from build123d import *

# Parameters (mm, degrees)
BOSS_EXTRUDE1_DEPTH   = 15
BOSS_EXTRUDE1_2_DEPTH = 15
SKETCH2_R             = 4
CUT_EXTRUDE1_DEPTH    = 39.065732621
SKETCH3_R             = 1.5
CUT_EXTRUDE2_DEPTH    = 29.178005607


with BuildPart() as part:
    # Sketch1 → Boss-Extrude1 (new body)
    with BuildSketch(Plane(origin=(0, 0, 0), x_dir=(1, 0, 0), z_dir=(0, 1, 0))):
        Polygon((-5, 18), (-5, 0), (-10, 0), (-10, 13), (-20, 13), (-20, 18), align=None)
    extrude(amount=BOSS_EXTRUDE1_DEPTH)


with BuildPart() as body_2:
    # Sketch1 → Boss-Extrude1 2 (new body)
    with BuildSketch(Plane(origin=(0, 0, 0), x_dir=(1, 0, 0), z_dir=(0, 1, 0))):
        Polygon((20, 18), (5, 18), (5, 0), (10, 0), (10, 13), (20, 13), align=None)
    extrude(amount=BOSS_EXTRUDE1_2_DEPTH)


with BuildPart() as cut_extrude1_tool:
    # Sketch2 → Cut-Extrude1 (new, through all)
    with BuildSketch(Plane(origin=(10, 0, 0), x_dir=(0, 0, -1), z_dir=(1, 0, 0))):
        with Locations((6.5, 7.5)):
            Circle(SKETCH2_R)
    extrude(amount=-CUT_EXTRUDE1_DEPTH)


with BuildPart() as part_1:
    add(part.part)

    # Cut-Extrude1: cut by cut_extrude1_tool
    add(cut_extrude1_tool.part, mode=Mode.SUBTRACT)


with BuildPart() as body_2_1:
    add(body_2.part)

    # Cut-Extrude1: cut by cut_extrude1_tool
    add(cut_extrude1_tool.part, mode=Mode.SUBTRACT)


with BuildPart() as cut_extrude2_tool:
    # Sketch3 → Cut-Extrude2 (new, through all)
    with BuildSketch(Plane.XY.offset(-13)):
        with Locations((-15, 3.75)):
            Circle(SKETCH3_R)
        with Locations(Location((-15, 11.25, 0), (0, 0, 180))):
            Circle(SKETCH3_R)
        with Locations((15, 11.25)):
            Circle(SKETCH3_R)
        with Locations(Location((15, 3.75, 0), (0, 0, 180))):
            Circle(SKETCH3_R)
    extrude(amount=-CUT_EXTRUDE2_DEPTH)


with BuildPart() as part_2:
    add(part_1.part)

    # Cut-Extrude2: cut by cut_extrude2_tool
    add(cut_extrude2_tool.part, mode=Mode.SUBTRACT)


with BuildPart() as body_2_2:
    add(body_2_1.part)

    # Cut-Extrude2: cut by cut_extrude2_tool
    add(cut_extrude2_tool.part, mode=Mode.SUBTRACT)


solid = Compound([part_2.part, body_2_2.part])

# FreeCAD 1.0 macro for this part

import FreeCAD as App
import Part
import Sketcher

V = App.Vector

doc = App.newDocument("Part")
body = doc.addObject("PartDesign::Body", "Body")

# Sketch on XZ plane
sketch1 = body.newObject("Sketcher::SketchObject", "Sketch")
sketch1.AttachmentSupport = (doc.getObject("XZ_Plane"), [""])
sketch1.MapMode = "FlatFace"
sketch1.addGeometry(Part.LineSegment(V(-5, 0, 0), V(-5, -18, 0)), False)
sketch1.addGeometry(Part.LineSegment(V(-5, -18, 0), V(-20, -18, 0)), False)
sketch1.addGeometry(Part.LineSegment(V(-20, -18, 0), V(-20, -13, 0)), False)
sketch1.addGeometry(Part.LineSegment(V(-20, -13, 0), V(-10, -13, 0)), False)
sketch1.addGeometry(Part.LineSegment(V(-10, -13, 0), V(-10, 0, 0)), False)
sketch1.addGeometry(Part.LineSegment(V(-10, 0, 0), V(-5, 0, 0)), False)
sketch1.addConstraint(Sketcher.Constraint("Coincident", 0, 2, 1, 1))
sketch1.addConstraint(Sketcher.Constraint("Coincident", 1, 2, 2, 1))
sketch1.addConstraint(Sketcher.Constraint("Coincident", 2, 2, 3, 1))
sketch1.addConstraint(Sketcher.Constraint("Coincident", 3, 2, 4, 1))
sketch1.addConstraint(Sketcher.Constraint("Coincident", 4, 2, 5, 1))
sketch1.addConstraint(Sketcher.Constraint("Coincident", 5, 2, 0, 1))
sketch1.addConstraint(Sketcher.Constraint("Vertical", 0))
sketch1.addConstraint(Sketcher.Constraint("Horizontal", 1))
sketch1.addConstraint(Sketcher.Constraint("Vertical", 2))
sketch1.addConstraint(Sketcher.Constraint("Horizontal", 3))
sketch1.addConstraint(Sketcher.Constraint("Vertical", 4))
sketch1.addConstraint(Sketcher.Constraint("Horizontal", 5))
sketch1.addConstraint(Sketcher.Constraint("PointOnObject", 4, 2, -1))
sketch1.addConstraint(Sketcher.Constraint("Equal", 5, 2))
sketch1.addConstraint(Sketcher.Constraint("DistanceX", 1, 2, 1, 1, 15.0))
sketch1.addConstraint(Sketcher.Constraint("DistanceX", 3, 1, 3, 2, 10.0))
sketch1.addConstraint(Sketcher.Constraint("DistanceY", 0, 2, 0, 1, 18.0))
sketch1.addConstraint(Sketcher.Constraint("DistanceX", 0, 2, -1, 1, 5.0))
pad1 = body.newObject("PartDesign::Pad", "Pad")
pad1.Profile = sketch1
pad1.Length = 15
pad1.Reversed = True
body2 = doc.addObject("PartDesign::Body", "Body001")

# Sketch on XZ plane
sketch2 = body2.newObject("Sketcher::SketchObject", "Sketch001")
sketch2.AttachmentSupport = (doc.getObject("XZ_Plane001"), [""])
sketch2.MapMode = "FlatFace"
sketch2.addGeometry(Part.LineSegment(V(20, -18, 0), V(5, -18, 0)), False)
sketch2.addGeometry(Part.LineSegment(V(5, -18, 0), V(5, 0, 0)), False)
sketch2.addGeometry(Part.LineSegment(V(5, 0, 0), V(10, 0, 0)), False)
sketch2.addGeometry(Part.LineSegment(V(10, 0, 0), V(10, -13, 0)), False)
sketch2.addGeometry(Part.LineSegment(V(10, -13, 0), V(20, -13, 0)), False)
sketch2.addGeometry(Part.LineSegment(V(20, -13, 0), V(20, -18, 0)), False)
sketch2.addConstraint(Sketcher.Constraint("Coincident", 0, 2, 1, 1))
sketch2.addConstraint(Sketcher.Constraint("Coincident", 1, 2, 2, 1))
sketch2.addConstraint(Sketcher.Constraint("Coincident", 2, 2, 3, 1))
sketch2.addConstraint(Sketcher.Constraint("Coincident", 3, 2, 4, 1))
sketch2.addConstraint(Sketcher.Constraint("Coincident", 4, 2, 5, 1))
sketch2.addConstraint(Sketcher.Constraint("Coincident", 5, 2, 0, 1))
sketch2.addConstraint(Sketcher.Constraint("Horizontal", 0))
sketch2.addConstraint(Sketcher.Constraint("Vertical", 1))
sketch2.addConstraint(Sketcher.Constraint("Horizontal", 2))
sketch2.addConstraint(Sketcher.Constraint("Vertical", 3))
sketch2.addConstraint(Sketcher.Constraint("Horizontal", 4))
sketch2.addConstraint(Sketcher.Constraint("Vertical", 5))
sketch2.addConstraint(Sketcher.Constraint("PointOnObject", 1, 2, -1))
sketch2.addConstraint(Sketcher.Constraint("Equal", 2, 5))
sketch2.addConstraint(Sketcher.Constraint("DistanceX", 0, 2, 0, 1, 15.0))
sketch2.addConstraint(Sketcher.Constraint("DistanceX", 2, 1, 2, 2, 5.0))
sketch2.addConstraint(Sketcher.Constraint("DistanceY", 1, 1, 1, 2, 18.0))
sketch2.addConstraint(Sketcher.Constraint("DistanceX", -1, 1, 0, 2, 5.0))
pad2 = body2.newObject("PartDesign::Pad", "Pad001")
pad2.Profile = sketch2
pad2.Length = 15
pad2.Reversed = True
body3 = doc.addObject("PartDesign::Body", "Body002")

# Sketch on YZ plane
sketch3 = body3.newObject("Sketcher::SketchObject", "Sketch002")
sketch3.AttachmentSupport = (doc.getObject("YZ_Plane002"), [""])
sketch3.MapMode = "FlatFace"
sketch3.AttachmentOffset = App.Placement(V(0, 0, 10), App.Rotation())
sketch3.addGeometry(Part.Circle(V(7.5, -6.5, 0), V(0, 0, 1), 4), False)
sketch3.addConstraint(Sketcher.Constraint("Diameter", 0, 8.0))
sketch3.addConstraint(Sketcher.Constraint("DistanceX", -1, 1, 0, 3, 7.5))
sketch3.addConstraint(Sketcher.Constraint("DistanceY", 0, 3, -1, 1, 6.5))
pad3 = body3.newObject("PartDesign::Pad", "Pad002")
pad3.Profile = sketch3
pad3.Length = 39.065733
pad3.Reversed = True
doc.recompute()

body4 = doc.addObject("PartDesign::Body", "Body003")
body4.BaseFeature = body3
boolean = body.newObject("PartDesign::Boolean", "Boolean")
boolean.Type = "Cut"
boolean.addObjects([body4])
doc.recompute()

boolean2 = body2.newObject("PartDesign::Boolean", "Boolean001")
boolean2.Type = "Cut"
boolean2.addObjects([body3])
body5 = doc.addObject("PartDesign::Body", "Body004")
body5.AllowCompound = True

# Sketch on XY plane
sketch4 = body5.newObject("Sketcher::SketchObject", "Sketch003")
sketch4.AttachmentSupport = (doc.getObject("XY_Plane004"), [""])
sketch4.MapMode = "FlatFace"
sketch4.AttachmentOffset = App.Placement(V(0, 0, -13), App.Rotation())
sketch4.addGeometry(Part.Circle(V(-15, 3.8, 0), V(0, 0, 1), 1.5), False)
sketch4.addGeometry(Part.Circle(V(-15, 11.2, 0), V(0, 0, 1), 1.5), False)
sketch4.addGeometry(Part.Circle(V(15, 11.2, 0), V(0, 0, 1), 1.5), False)
sketch4.addGeometry(Part.Circle(V(15, 3.8, 0), V(0, 0, 1), 1.5), False)
sketch4.addConstraint(Sketcher.Constraint("Equal", 0, 1))
sketch4.addConstraint(Sketcher.Constraint("Equal", 1, 2))
sketch4.addConstraint(Sketcher.Constraint("Equal", 2, 3))
sketch4.addConstraint(Sketcher.Constraint("Symmetric", 1, 3, 2, 3, -2))
sketch4.addConstraint(Sketcher.Constraint("Symmetric", 0, 3, 3, 3, -2))
sketch4.addConstraint(Sketcher.Constraint("Vertical", 0, 3, 1, 3))
sketch4.addConstraint(Sketcher.Constraint("Diameter", 0, 3.0))
sketch4.addConstraint(Sketcher.Constraint("DistanceX", 0, 3, -1, 1, 15.0))
sketch4.addConstraint(Sketcher.Constraint("DistanceY", 0, 3, 1, 3, 7.5))
sketch4.addConstraint(Sketcher.Constraint("DistanceY", -1, 1, 0, 3, 3.75))
pad4 = body5.newObject("PartDesign::Pad", "Pad003")
pad4.Profile = sketch4
pad4.Length = 29.178006
pad4.Reversed = True
doc.recompute()

body6 = doc.addObject("PartDesign::Body", "Body005")
body6.BaseFeature = body5
boolean3 = body.newObject("PartDesign::Boolean", "Boolean002")
boolean3.Type = "Cut"
boolean3.addObjects([body6])
doc.recompute()

boolean4 = body2.newObject("PartDesign::Boolean", "Boolean003")
boolean4.Type = "Cut"
boolean4.addObjects([body5])

doc.recompute()
